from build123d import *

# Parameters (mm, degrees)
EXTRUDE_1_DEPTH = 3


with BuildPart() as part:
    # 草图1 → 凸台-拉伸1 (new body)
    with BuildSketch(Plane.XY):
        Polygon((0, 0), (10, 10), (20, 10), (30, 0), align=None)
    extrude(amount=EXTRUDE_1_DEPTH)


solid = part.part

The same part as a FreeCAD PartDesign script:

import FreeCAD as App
import Part
import Sketcher
Q = App.Units.Quantity

doc = App.newDocument("Part")
body = doc.addObject("PartDesign::Body", "Body")

sketch1 = body.newObject("Sketcher::SketchObject", "Sketch")
sketch1.AttachmentSupport = (doc.getObject("XY_Plane"), [""])
sketch1.MapMode = "FlatFace"
sketch1.addGeometry(Part.LineSegment(App.Vector(10, 10, 0), App.Vector(0, 0, 0)), False)
sketch1.addGeometry(Part.LineSegment(App.Vector(0, 0, 0), App.Vector(30, 0, 0)), False)
sketch1.addGeometry(Part.LineSegment(App.Vector(30, 0, 0), App.Vector(20, 10, 0)), False)
sketch1.addGeometry(Part.LineSegment(App.Vector(20, 10, 0), App.Vector(10, 10, 0)), False)
sketch1.addConstraint(Sketcher.Constraint("Coincident", 0, 2, 1, 1))
sketch1.addConstraint(Sketcher.Constraint("Coincident", 1, 2, 2, 1))
sketch1.addConstraint(Sketcher.Constraint("Coincident", 2, 2, 3, 1))
sketch1.addConstraint(Sketcher.Constraint("Coincident", 3, 2, 0, 1))
sketch1.addConstraint(Sketcher.Constraint("Horizontal", 1))
sketch1.addConstraint(Sketcher.Constraint("Horizontal", 3))
sketch1.addConstraint(Sketcher.Constraint("Coincident", 0, 2, -1, 1))
sketch1.addConstraint(Sketcher.Constraint("Perpendicular", 0, 2))
sketch1.addConstraint(Sketcher.Constraint("Equal", 0, 2))
sketch1.addConstraint(Sketcher.Constraint("DistanceX", 1, 1, 1, 2, Q("30 mm")))
sketch1.addConstraint(Sketcher.Constraint("DistanceX", 3, 2, 3, 1, Q("10 mm")))
pad1 = body.newObject("PartDesign::Pad", "Pad")
pad1.Profile = sketch1
pad1.Length = 3

doc.recompute()
